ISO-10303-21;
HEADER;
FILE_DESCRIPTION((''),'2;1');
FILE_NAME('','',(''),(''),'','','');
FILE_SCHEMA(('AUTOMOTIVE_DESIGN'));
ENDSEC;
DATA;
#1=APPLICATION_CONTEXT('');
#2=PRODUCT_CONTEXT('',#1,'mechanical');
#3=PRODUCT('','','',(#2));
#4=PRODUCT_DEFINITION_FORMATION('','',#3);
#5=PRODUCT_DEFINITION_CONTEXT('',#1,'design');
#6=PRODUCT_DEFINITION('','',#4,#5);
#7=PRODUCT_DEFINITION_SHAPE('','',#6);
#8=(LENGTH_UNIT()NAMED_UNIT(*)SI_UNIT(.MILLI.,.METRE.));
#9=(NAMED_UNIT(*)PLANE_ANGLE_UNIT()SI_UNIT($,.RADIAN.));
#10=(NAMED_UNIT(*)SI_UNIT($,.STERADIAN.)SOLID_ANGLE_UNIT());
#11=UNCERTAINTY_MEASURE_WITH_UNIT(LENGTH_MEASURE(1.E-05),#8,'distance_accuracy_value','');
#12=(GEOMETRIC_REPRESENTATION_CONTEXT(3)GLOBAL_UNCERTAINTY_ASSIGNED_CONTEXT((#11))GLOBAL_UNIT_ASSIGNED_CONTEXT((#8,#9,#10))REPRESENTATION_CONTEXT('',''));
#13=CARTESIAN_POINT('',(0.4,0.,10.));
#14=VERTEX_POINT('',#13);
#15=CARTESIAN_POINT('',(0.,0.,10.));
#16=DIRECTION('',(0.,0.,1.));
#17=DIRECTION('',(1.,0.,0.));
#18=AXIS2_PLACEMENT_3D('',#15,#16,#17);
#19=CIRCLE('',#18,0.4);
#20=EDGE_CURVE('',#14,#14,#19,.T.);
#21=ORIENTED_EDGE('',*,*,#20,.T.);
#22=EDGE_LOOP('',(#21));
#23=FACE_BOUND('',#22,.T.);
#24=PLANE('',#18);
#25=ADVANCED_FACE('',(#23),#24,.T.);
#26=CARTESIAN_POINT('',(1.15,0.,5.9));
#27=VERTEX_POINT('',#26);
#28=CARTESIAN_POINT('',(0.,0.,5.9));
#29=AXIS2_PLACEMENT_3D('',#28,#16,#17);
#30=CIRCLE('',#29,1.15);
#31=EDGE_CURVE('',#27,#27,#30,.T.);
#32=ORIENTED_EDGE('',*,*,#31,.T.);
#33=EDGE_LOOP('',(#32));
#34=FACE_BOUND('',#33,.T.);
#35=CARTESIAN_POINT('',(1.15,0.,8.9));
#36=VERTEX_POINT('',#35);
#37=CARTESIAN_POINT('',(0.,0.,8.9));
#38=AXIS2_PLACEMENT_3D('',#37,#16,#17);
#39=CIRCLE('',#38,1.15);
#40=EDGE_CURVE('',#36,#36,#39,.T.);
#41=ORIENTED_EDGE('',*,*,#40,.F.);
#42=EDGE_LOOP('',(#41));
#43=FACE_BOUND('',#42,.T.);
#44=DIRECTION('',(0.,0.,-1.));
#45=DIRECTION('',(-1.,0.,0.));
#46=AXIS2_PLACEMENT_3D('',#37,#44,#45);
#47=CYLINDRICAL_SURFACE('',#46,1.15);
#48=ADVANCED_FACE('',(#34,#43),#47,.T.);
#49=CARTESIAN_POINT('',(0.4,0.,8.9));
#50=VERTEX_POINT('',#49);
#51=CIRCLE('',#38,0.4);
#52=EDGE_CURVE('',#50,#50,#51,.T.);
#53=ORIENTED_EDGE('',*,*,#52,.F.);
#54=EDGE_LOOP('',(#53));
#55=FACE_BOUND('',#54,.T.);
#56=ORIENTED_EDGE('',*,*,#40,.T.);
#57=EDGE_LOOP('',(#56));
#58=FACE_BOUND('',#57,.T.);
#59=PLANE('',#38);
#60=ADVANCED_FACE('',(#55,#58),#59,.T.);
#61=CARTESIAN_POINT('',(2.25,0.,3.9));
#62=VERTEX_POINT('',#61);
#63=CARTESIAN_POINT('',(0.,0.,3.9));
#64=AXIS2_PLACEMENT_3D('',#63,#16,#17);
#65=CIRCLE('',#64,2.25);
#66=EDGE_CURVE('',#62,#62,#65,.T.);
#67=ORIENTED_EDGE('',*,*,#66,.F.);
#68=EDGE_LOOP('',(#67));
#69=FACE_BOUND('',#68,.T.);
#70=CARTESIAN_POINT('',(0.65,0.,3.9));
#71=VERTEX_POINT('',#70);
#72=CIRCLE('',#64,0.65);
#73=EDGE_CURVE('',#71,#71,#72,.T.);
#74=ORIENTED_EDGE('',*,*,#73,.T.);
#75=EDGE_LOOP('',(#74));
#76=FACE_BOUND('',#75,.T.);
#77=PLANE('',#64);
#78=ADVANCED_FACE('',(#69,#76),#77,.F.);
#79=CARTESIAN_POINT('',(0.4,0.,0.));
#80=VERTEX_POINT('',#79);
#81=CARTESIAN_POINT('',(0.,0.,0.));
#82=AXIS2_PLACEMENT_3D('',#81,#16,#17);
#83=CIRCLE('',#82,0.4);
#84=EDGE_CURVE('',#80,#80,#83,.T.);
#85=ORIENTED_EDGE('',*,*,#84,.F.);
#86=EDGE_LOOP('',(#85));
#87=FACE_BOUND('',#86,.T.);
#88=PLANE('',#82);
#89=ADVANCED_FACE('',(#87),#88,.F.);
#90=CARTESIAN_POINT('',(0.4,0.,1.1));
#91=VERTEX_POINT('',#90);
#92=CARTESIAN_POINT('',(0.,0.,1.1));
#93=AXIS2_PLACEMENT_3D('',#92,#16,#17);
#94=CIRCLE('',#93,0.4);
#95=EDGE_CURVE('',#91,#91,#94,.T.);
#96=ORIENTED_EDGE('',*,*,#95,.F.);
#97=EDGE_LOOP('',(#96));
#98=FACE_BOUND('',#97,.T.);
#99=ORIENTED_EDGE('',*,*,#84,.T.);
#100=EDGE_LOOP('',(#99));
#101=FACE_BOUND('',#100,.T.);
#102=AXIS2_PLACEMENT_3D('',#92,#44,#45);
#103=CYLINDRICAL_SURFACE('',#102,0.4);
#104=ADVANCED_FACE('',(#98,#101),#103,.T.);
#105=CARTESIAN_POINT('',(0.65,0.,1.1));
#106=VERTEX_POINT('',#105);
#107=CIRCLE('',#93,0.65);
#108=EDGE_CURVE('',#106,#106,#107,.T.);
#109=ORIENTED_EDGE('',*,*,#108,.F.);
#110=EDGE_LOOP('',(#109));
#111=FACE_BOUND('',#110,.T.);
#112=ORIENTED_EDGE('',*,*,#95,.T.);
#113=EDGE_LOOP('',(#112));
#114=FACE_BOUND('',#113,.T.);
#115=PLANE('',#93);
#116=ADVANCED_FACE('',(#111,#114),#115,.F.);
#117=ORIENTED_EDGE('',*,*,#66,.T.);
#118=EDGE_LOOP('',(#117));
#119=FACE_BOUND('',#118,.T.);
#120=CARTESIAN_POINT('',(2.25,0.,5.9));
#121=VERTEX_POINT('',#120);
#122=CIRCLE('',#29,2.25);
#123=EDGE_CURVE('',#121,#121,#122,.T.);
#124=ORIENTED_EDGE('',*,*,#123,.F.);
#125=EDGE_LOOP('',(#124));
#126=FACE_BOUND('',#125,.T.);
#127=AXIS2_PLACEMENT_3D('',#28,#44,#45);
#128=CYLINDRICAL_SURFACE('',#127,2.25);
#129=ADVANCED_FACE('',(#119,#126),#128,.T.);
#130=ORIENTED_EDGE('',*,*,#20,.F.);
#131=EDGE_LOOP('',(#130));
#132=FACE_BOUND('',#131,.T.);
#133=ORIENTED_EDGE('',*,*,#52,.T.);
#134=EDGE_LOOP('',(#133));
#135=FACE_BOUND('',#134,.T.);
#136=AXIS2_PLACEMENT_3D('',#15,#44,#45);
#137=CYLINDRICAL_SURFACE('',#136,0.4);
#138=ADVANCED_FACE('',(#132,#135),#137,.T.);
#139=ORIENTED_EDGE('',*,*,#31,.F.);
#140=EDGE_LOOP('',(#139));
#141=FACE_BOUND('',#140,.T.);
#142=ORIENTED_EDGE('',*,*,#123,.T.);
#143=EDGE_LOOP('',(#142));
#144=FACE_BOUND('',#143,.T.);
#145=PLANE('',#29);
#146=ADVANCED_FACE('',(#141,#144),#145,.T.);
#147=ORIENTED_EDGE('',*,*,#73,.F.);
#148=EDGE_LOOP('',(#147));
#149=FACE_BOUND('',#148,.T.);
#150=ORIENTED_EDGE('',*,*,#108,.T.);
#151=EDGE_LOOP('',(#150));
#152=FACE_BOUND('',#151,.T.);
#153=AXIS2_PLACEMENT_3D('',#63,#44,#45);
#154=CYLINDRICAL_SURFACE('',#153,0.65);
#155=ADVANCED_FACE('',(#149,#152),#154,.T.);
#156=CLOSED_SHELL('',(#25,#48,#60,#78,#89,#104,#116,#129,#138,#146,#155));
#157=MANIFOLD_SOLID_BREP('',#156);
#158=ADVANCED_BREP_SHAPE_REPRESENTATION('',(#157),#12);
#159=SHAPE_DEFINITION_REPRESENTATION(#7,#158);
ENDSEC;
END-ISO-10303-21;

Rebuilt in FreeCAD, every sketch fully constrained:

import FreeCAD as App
import Part
import Sketcher
from FreeCAD import Vector

doc = App.newDocument("Part")
body = doc.addObject("PartDesign::Body", "Body")

# Sketch on XY plane
sketch1 = doc.addObject("Sketcher::SketchObject", "Sketch")
body.addObject(sketch1)
sketch1.AttachmentSupport = (doc.XY_Plane, [""])
sketch1.MapMode = "FlatFace"
sketch1.addGeometry(Part.Circle(Vector(0, 0, 0), Vector(0, 0, 1), 0.4), False)
sketch1.addConstraint(Sketcher.Constraint("Coincident", 0, 3, -1, 1))
sketch1.addConstraint(Sketcher.Constraint("Diameter", 0, 0.8))
pad1 = doc.addObject("PartDesign::Pad", "Pad")
body.addObject(pad1)
pad1.Profile = sketch1
pad1.Length = 1.1

# Sketch on XY plane
sketch2 = doc.addObject("Sketcher::SketchObject", "Sketch001")
body.addObject(sketch2)
sketch2.AttachmentSupport = (doc.XY_Plane, [""])
sketch2.MapMode = "FlatFace"
sketch2.AttachmentOffset = App.Placement(Vector(0, 0, 1.1), App.Rotation())
sketch2.addGeometry(Part.Circle(Vector(0, 0, 0), Vector(0, 0, 1), 0.7), False)
sketch2.addConstraint(Sketcher.Constraint("Coincident", 0, 3, -1, 1))
sketch2.addConstraint(Sketcher.Constraint("Diameter", 0, 1.3))
pad2 = doc.addObject("PartDesign::Pad", "Pad001")
body.addObject(pad2)
pad2.Profile = sketch2
pad2.Length = 2.8

# Sketch on XY plane
sketch3 = doc.addObject("Sketcher::SketchObject", "Sketch002")
body.addObject(sketch3)
sketch3.AttachmentSupport = (doc.XY_Plane, [""])
sketch3.MapMode = "FlatFace"
sketch3.AttachmentOffset = App.Placement(Vector(0, 0, 3.9), App.Rotation())
sketch3.addGeometry(Part.Circle(Vector(0, 0, 0), Vector(0, 0, 1), 2.2), False)
sketch3.addConstraint(Sketcher.Constraint("Coincident", 0, 3, -1, 1))
sketch3.addConstraint(Sketcher.Constraint("Diameter", 0, 4.5))
pad3 = doc.addObject("PartDesign::Pad", "Pad002")
body.addObject(pad3)
pad3.Profile = sketch3
pad3.Length = 2

# Sketch on XY plane
sketch4 = doc.addObject("Sketcher::SketchObject", "Sketch003")
body.addObject(sketch4)
sketch4.AttachmentSupport = (doc.XY_Plane, [""])
sketch4.MapMode = "FlatFace"
sketch4.AttachmentOffset = App.Placement(Vector(0, 0, 5.9), App.Rotation())
sketch4.addGeometry(Part.Circle(Vector(0, 0, 0), Vector(0, 0, 1), 1.1), False)
sketch4.addConstraint(Sketcher.Constraint("Coincident", 0, 3, -1, 1))
sketch4.addConstraint(Sketcher.Constraint("Diameter", 0, 2.3))
pad4 = doc.addObject("PartDesign::Pad", "Pad003")
body.addObject(pad4)
pad4.Profile = sketch4
pad4.Length = 3

# Sketch on XY plane
sketch5 = doc.addObject("Sketcher::SketchObject", "Sketch004")
body.addObject(sketch5)
sketch5.AttachmentSupport = (doc.XY_Plane, [""])
sketch5.MapMode = "FlatFace"
sketch5.AttachmentOffset = App.Placement(Vector(0, 0, 8.9), App.Rotation())
sketch5.addGeometry(Part.Circle(Vector(0, 0, 0), Vector(0, 0, 1), 0.4), False)
sketch5.addConstraint(Sketcher.Constraint("Coincident", 0, 3, -1, 1))
sketch5.addConstraint(Sketcher.Constraint("Diameter", 0, 0.8))
pad5 = doc.addObject("PartDesign::Pad", "Pad004")
body.addObject(pad5)
pad5.Profile = sketch5
pad5.Length = 1.1

doc.recompute()
